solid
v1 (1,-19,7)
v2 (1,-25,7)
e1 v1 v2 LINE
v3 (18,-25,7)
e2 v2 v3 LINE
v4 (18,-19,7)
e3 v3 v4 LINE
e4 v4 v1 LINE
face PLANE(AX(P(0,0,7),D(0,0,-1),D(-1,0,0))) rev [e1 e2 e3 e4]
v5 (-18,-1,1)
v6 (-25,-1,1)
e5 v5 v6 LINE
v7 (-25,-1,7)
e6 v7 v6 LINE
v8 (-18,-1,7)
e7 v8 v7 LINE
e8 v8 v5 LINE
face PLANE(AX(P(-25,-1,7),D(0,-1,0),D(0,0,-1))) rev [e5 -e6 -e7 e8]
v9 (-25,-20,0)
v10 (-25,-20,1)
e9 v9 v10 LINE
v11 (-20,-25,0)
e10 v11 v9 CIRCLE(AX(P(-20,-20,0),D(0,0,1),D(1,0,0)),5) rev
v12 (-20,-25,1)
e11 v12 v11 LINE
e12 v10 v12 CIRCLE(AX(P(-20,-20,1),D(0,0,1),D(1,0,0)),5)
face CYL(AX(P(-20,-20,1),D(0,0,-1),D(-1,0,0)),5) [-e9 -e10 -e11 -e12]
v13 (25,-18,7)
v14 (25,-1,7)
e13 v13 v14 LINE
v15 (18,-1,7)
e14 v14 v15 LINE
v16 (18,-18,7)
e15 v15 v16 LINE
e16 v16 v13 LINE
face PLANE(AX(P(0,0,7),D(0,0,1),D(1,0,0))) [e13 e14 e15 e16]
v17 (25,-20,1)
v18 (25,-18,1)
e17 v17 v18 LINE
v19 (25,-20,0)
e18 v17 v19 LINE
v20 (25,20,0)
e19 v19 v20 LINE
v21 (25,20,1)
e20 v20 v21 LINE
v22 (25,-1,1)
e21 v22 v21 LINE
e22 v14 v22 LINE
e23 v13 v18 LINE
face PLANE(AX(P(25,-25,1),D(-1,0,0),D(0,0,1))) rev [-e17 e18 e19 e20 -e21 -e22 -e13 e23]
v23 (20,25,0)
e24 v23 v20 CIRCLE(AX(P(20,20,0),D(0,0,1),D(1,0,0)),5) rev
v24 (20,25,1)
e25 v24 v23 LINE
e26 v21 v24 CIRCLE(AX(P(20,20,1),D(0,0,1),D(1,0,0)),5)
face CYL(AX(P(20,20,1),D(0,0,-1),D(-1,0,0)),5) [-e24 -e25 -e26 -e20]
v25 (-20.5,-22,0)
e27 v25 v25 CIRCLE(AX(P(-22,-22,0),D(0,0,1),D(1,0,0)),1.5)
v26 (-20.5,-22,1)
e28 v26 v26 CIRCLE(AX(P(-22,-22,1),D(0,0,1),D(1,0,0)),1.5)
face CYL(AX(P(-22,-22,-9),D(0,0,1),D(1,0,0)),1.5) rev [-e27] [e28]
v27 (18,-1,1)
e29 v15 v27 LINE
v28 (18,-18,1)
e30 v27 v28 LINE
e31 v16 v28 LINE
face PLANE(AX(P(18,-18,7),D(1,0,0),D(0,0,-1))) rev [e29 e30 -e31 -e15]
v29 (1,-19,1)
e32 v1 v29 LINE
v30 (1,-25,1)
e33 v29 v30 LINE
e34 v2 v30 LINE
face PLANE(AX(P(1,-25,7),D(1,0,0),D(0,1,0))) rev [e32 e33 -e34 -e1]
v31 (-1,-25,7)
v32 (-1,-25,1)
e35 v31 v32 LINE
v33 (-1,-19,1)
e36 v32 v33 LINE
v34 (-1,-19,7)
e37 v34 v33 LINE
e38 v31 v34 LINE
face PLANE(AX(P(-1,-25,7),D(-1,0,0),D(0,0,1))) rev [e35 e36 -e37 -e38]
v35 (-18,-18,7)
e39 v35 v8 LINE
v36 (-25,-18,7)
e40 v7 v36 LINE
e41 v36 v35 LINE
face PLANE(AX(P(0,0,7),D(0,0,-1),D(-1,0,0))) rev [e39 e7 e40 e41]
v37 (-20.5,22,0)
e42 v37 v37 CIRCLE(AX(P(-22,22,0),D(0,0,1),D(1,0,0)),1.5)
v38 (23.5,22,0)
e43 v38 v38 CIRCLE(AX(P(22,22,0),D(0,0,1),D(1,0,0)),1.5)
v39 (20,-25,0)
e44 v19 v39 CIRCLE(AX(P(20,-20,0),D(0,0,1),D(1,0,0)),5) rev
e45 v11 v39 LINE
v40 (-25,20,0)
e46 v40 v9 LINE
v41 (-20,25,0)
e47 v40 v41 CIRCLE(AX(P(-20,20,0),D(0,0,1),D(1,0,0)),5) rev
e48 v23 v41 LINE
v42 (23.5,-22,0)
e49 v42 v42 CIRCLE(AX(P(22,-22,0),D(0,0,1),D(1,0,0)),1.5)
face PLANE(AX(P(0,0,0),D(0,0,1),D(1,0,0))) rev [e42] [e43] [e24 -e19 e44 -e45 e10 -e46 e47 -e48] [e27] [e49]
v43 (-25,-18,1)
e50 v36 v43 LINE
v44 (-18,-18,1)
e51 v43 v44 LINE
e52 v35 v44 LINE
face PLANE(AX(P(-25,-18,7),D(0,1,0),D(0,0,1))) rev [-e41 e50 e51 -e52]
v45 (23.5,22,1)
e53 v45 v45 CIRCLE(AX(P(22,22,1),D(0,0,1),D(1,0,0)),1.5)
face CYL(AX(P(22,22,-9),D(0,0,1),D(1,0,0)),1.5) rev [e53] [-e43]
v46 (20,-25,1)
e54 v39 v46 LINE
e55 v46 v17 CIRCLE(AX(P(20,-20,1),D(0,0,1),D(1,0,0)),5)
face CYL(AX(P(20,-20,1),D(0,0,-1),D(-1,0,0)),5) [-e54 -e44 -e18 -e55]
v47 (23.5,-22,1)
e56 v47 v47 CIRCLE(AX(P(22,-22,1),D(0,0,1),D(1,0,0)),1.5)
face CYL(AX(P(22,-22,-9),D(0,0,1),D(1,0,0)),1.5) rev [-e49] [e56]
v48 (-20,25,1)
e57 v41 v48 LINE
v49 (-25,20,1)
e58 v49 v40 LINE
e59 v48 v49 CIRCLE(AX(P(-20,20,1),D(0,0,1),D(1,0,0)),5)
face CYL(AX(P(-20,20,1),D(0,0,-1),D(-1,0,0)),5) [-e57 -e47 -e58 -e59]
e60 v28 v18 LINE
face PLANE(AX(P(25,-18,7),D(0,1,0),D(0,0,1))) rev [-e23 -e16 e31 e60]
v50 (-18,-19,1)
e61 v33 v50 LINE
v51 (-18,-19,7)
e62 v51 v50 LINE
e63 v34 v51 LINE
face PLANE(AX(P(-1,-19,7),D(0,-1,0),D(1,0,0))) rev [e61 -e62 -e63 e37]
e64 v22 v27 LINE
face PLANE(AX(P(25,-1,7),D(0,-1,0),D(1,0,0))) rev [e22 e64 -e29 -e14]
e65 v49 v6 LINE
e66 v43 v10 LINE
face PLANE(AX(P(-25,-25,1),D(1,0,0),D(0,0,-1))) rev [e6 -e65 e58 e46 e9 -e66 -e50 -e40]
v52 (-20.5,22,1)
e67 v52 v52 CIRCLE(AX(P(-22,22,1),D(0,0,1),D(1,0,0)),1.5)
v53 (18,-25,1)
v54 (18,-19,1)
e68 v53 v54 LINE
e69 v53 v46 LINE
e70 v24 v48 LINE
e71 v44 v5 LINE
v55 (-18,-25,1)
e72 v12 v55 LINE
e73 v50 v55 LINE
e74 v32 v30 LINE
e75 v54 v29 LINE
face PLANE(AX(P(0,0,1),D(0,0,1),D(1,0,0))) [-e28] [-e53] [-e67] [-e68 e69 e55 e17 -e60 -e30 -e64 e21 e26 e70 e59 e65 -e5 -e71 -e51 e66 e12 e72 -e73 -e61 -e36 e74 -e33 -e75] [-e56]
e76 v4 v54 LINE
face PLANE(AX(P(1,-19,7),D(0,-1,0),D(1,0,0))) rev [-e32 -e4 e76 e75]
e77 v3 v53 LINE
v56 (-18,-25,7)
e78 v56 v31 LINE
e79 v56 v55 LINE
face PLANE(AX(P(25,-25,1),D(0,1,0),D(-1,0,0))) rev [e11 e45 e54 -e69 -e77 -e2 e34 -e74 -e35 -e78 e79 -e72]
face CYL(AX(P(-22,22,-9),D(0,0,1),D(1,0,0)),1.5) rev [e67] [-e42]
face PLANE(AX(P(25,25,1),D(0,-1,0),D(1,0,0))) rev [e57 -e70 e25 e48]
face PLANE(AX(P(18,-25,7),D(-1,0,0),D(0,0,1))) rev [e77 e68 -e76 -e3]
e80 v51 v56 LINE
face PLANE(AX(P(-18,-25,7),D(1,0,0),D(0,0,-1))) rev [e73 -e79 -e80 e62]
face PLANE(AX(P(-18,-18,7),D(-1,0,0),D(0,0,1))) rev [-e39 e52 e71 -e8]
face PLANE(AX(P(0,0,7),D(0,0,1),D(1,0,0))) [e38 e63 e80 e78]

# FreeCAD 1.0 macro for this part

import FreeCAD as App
import Part
import Sketcher

V = App.Vector


def edges_at(feature, points):
    """Names of the edges that pass closest to the given points."""
    edges = feature.Shape.Edges
    near = lambda p: min(range(len(edges)), key=lambda i: edges[i].distToShape(Part.Vertex(*p))[0])
    return sorted({f"Edge{near(p) + 1}" for p in points})

doc = App.newDocument("Part")
params = doc.addObject("Spreadsheet::Sheet", "Params")
for row, (alias, value) in enumerate([
    ("sketch1_width", "50 mm"),
    ("pad1_length", "1 mm"),
    ("fillet_radius", "5 mm"),
    ("sketch2_width", "17 mm"),
    ("sketch2_width2", "7 mm"),
    ("sketch2_height", "6 mm"),
    ("pad2_length", "6 mm"),
    ("sketch3_diameter", "3 mm"),
    ("pocket1_length", "10 mm"),
], start=1):
    params.set(f"A{row}", alias)
    params.set(f"B{row}", "=" + value)
    params.setAlias(f"B{row}", alias)

body = doc.addObject("PartDesign::Body", "Body")

# Sketch on XY plane
sketch1 = doc.addObject("Sketcher::SketchObject", "Sketch")
body.addObject(sketch1)
sketch1.AttachmentSupport = (doc.XY_Plane, [""])
sketch1.MapMode = "FlatFace"
sketch1.addGeometry(Part.LineSegment(V(-25, 25, 0), V(-25, -25, 0)), False)
sketch1.addGeometry(Part.LineSegment(V(-25, -25, 0), V(25, -25, 0)), False)
sketch1.addGeometry(Part.LineSegment(V(25, -25, 0), V(25, 25, 0)), False)
sketch1.addGeometry(Part.LineSegment(V(25, 25, 0), V(-25, 25, 0)), False)
sketch1.addConstraint(Sketcher.Constraint("Coincident", 0, 2, 1, 1))
sketch1.addConstraint(Sketcher.Constraint("Coincident", 1, 2, 2, 1))
sketch1.addConstraint(Sketcher.Constraint("Coincident", 2, 2, 3, 1))
sketch1.addConstraint(Sketcher.Constraint("Coincident", 3, 2, 0, 1))
sketch1.addConstraint(Sketcher.Constraint("Vertical", 0))
sketch1.addConstraint(Sketcher.Constraint("Horizontal", 1))
sketch1.addConstraint(Sketcher.Constraint("Vertical", 2))
sketch1.addConstraint(Sketcher.Constraint("Horizontal", 3))
sketch1.addConstraint(Sketcher.Constraint("Symmetric", 0, 2, 2, 2, -1, 1))
sketch1.addConstraint(Sketcher.Constraint("Equal", 3, 0))
sketch1.addConstraint(Sketcher.Constraint("DistanceX", 1, 1, 1, 2, 50.0))
sketch1.setExpression("Constraints[10]", "Params.sketch1_width")
pad1 = doc.addObject("PartDesign::Pad", "Pad")
body.addObject(pad1)
pad1.Profile = sketch1
pad1.setExpression("Length", "Params.pad1_length")
doc.recompute()

fillet = doc.addObject("PartDesign::Fillet", "Fillet")
body.addObject(fillet)
fillet.Base = (pad1, edges_at(pad1, [
    (-25, 25, 0.5),
    (25, 25, 0.5),
    (25, -25, 0.5),
    (-25, -25, 0.5),
]))
fillet.setExpression("Radius", "Params.fillet_radius")

# Sketch on XY plane
sketch2 = doc.addObject("Sketcher::SketchObject", "Sketch001")
body.addObject(sketch2)
sketch2.AttachmentSupport = (doc.XY_Plane, [""])
sketch2.MapMode = "FlatFace"
sketch2.AttachmentOffset = App.Placement(V(0, 0, 1), App.Rotation())
sketch2.addGeometry(Part.LineSegment(V(-18, -19, 0), V(-18, -25, 0)), False)
sketch2.addGeometry(Part.LineSegment(V(-18, -25, 0), V(-1, -25, 0)), False)
sketch2.addGeometry(Part.LineSegment(V(-1, -25, 0), V(-1, -19, 0)), False)
sketch2.addGeometry(Part.LineSegment(V(-1, -19, 0), V(-18, -19, 0)), False)
sketch2.addGeometry(Part.LineSegment(V(-25, -1, 0), V(-25, -18, 0)), False)
sketch2.addGeometry(Part.LineSegment(V(-25, -18, 0), V(-18, -18, 0)), False)
sketch2.addGeometry(Part.LineSegment(V(-18, -18, 0), V(-18, -1, 0)), False)
sketch2.addGeometry(Part.LineSegment(V(-18, -1, 0), V(-25, -1, 0)), False)
sketch2.addGeometry(Part.LineSegment(V(1, -19, 0), V(1, -25, 0)), False)
sketch2.addGeometry(Part.LineSegment(V(1, -25, 0), V(18, -25, 0)), False)
sketch2.addGeometry(Part.LineSegment(V(18, -25, 0), V(18, -19, 0)), False)
sketch2.addGeometry(Part.LineSegment(V(18, -19, 0), V(1, -19, 0)), False)
sketch2.addGeometry(Part.LineSegment(V(18, -1, 0), V(18, -18, 0)), False)
sketch2.addGeometry(Part.LineSegment(V(18, -18, 0), V(25, -18, 0)), False)
sketch2.addGeometry(Part.LineSegment(V(25, -18, 0), V(25, -1, 0)), False)
sketch2.addGeometry(Part.LineSegment(V(25, -1, 0), V(18, -1, 0)), False)
sketch2.addConstraint(Sketcher.Constraint("Coincident", 0, 2, 1, 1))
sketch2.addConstraint(Sketcher.Constraint("Coincident", 1, 2, 2, 1))
sketch2.addConstraint(Sketcher.Constraint("Coincident", 2, 2, 3, 1))
sketch2.addConstraint(Sketcher.Constraint("Coincident", 3, 2, 0, 1))
sketch2.addConstraint(Sketcher.Constraint("Coincident", 4, 2, 5, 1))
sketch2.addConstraint(Sketcher.Constraint("Coincident", 5, 2, 6, 1))
sketch2.addConstraint(Sketcher.Constraint("Coincident", 6, 2, 7, 1))
sketch2.addConstraint(Sketcher.Constraint("Coincident", 7, 2, 4, 1))
sketch2.addConstraint(Sketcher.Constraint("Coincident", 8, 2, 9, 1))
sketch2.addConstraint(Sketcher.Constraint("Coincident", 9, 2, 10, 1))
sketch2.addConstraint(Sketcher.Constraint("Coincident", 10, 2, 11, 1))
sketch2.addConstraint(Sketcher.Constraint("Coincident", 11, 2, 8, 1))
sketch2.addConstraint(Sketcher.Constraint("Coincident", 12, 2, 13, 1))
sketch2.addConstraint(Sketcher.Constraint("Coincident", 13, 2, 14, 1))
sketch2.addConstraint(Sketcher.Constraint("Coincident", 14, 2, 15, 1))
sketch2.addConstraint(Sketcher.Constraint("Coincident", 15, 2, 12, 1))
sketch2.addConstraint(Sketcher.Constraint("Vertical", 0))
sketch2.addConstraint(Sketcher.Constraint("Horizontal", 1))
sketch2.addConstraint(Sketcher.Constraint("Vertical", 2))
sketch2.addConstraint(Sketcher.Constraint("Horizontal", 3))
sketch2.addConstraint(Sketcher.Constraint("Vertical", 4))
sketch2.addConstraint(Sketcher.Constraint("Horizontal", 5))
sketch2.addConstraint(Sketcher.Constraint("Vertical", 6))
sketch2.addConstraint(Sketcher.Constraint("Horizontal", 7))
sketch2.addConstraint(Sketcher.Constraint("Vertical", 8))
sketch2.addConstraint(Sketcher.Constraint("Horizontal", 9))
sketch2.addConstraint(Sketcher.Constraint("Vertical", 10))
sketch2.addConstraint(Sketcher.Constraint("Horizontal", 11))
sketch2.addConstraint(Sketcher.Constraint("Vertical", 12))
sketch2.addConstraint(Sketcher.Constraint("Horizontal", 13))
sketch2.addConstraint(Sketcher.Constraint("Vertical", 14))
sketch2.addConstraint(Sketcher.Constraint("Horizontal", 15))
sketch2.addConstraint(Sketcher.Constraint("Symmetric", 1, 2, 8, 2, -2))
sketch2.addConstraint(Sketcher.Constraint("Symmetric", 3, 2, 10, 2, -2))
sketch2.addConstraint(Sketcher.Constraint("Symmetric", 5, 2, 12, 2, -2))
sketch2.addConstraint(Sketcher.Constraint("Symmetric", 7, 2, 14, 2, -2))
sketch2.addConstraint(Sketcher.Constraint("Vertical", 3, 2, 5, 2))
sketch2.addConstraint(Sketcher.Constraint("Equal", 11, 4))
sketch2.addConstraint(Sketcher.Constraint("DistanceX", 1, 1, 1, 2, 17.0))
sketch2.addConstraint(Sketcher.Constraint("DistanceX", 5, 1, 5, 2, 7.0))
sketch2.addConstraint(Sketcher.Constraint("DistanceY", 0, 2, 0, 1, 6.0))
sketch2.addConstraint(Sketcher.Constraint("DistanceX", 0, 2, -1, 1, 18.0))
sketch2.addConstraint(Sketcher.Constraint("DistanceY", 0, 2, -1, 1, 25.0))
sketch2.addConstraint(Sketcher.Constraint("DistanceY", 4, 2, -1, 1, 18.0))
sketch2.setExpression("Constraints[38]", "Params.sketch2_width")
sketch2.setExpression("Constraints[39]", "Params.sketch2_width2")
sketch2.setExpression("Constraints[40]", "Params.sketch2_height")
pad2 = doc.addObject("PartDesign::Pad", "Pad001")
body.addObject(pad2)
pad2.Profile = sketch2
pad2.setExpression("Length", "Params.pad2_length")

# Sketch on XY plane
sketch3 = doc.addObject("Sketcher::SketchObject", "Sketch002")
body.addObject(sketch3)
sketch3.AttachmentSupport = (doc.XY_Plane, [""])
sketch3.MapMode = "FlatFace"
sketch3.AttachmentOffset = App.Placement(V(0, 0, 1), App.Rotation())
sketch3.addGeometry(Part.Circle(V(-22, 22, 0), V(0, 0, 1), 1.5), False)
sketch3.addGeometry(Part.Circle(V(22, 22, 0), V(0, 0, 1), 1.5), False)
sketch3.addGeometry(Part.Circle(V(-22, -22, 0), V(0, 0, 1), 1.5), False)
sketch3.addGeometry(Part.Circle(V(22, -22, 0), V(0, 0, 1), 1.5), False)
sketch3.addConstraint(Sketcher.Constraint("Equal", 0, 1))
sketch3.addConstraint(Sketcher.Constraint("Equal", 1, 2))
sketch3.addConstraint(Sketcher.Constraint("Equal", 2, 3))
sketch3.addConstraint(Sketcher.Constraint("Symmetric", 1, 3, 2, 3, -1, 1))
sketch3.addConstraint(Sketcher.Constraint("Symmetric", 0, 3, 3, 3, -1, 1))
sketch3.addConstraint(Sketcher.Constraint("Symmetric", 0, 3, 1, 3, -2))
sketch3.addConstraint(Sketcher.Constraint("Diameter", 0, 3.0))
sketch3.addConstraint(Sketcher.Constraint("DistanceX", 0, 3, -1, 1, 22.0))
sketch3.addConstraint(Sketcher.Constraint("DistanceY", -1, 1, 0, 3, 22.0))
sketch3.setExpression("Constraints[6]", "Params.sketch3_diameter")
pocket1 = doc.addObject("PartDesign::Pocket", "Pocket")
body.addObject(pocket1)
pocket1.Profile = sketch3
pocket1.setExpression("Length", "Params.pocket1_length")

doc.recompute()
